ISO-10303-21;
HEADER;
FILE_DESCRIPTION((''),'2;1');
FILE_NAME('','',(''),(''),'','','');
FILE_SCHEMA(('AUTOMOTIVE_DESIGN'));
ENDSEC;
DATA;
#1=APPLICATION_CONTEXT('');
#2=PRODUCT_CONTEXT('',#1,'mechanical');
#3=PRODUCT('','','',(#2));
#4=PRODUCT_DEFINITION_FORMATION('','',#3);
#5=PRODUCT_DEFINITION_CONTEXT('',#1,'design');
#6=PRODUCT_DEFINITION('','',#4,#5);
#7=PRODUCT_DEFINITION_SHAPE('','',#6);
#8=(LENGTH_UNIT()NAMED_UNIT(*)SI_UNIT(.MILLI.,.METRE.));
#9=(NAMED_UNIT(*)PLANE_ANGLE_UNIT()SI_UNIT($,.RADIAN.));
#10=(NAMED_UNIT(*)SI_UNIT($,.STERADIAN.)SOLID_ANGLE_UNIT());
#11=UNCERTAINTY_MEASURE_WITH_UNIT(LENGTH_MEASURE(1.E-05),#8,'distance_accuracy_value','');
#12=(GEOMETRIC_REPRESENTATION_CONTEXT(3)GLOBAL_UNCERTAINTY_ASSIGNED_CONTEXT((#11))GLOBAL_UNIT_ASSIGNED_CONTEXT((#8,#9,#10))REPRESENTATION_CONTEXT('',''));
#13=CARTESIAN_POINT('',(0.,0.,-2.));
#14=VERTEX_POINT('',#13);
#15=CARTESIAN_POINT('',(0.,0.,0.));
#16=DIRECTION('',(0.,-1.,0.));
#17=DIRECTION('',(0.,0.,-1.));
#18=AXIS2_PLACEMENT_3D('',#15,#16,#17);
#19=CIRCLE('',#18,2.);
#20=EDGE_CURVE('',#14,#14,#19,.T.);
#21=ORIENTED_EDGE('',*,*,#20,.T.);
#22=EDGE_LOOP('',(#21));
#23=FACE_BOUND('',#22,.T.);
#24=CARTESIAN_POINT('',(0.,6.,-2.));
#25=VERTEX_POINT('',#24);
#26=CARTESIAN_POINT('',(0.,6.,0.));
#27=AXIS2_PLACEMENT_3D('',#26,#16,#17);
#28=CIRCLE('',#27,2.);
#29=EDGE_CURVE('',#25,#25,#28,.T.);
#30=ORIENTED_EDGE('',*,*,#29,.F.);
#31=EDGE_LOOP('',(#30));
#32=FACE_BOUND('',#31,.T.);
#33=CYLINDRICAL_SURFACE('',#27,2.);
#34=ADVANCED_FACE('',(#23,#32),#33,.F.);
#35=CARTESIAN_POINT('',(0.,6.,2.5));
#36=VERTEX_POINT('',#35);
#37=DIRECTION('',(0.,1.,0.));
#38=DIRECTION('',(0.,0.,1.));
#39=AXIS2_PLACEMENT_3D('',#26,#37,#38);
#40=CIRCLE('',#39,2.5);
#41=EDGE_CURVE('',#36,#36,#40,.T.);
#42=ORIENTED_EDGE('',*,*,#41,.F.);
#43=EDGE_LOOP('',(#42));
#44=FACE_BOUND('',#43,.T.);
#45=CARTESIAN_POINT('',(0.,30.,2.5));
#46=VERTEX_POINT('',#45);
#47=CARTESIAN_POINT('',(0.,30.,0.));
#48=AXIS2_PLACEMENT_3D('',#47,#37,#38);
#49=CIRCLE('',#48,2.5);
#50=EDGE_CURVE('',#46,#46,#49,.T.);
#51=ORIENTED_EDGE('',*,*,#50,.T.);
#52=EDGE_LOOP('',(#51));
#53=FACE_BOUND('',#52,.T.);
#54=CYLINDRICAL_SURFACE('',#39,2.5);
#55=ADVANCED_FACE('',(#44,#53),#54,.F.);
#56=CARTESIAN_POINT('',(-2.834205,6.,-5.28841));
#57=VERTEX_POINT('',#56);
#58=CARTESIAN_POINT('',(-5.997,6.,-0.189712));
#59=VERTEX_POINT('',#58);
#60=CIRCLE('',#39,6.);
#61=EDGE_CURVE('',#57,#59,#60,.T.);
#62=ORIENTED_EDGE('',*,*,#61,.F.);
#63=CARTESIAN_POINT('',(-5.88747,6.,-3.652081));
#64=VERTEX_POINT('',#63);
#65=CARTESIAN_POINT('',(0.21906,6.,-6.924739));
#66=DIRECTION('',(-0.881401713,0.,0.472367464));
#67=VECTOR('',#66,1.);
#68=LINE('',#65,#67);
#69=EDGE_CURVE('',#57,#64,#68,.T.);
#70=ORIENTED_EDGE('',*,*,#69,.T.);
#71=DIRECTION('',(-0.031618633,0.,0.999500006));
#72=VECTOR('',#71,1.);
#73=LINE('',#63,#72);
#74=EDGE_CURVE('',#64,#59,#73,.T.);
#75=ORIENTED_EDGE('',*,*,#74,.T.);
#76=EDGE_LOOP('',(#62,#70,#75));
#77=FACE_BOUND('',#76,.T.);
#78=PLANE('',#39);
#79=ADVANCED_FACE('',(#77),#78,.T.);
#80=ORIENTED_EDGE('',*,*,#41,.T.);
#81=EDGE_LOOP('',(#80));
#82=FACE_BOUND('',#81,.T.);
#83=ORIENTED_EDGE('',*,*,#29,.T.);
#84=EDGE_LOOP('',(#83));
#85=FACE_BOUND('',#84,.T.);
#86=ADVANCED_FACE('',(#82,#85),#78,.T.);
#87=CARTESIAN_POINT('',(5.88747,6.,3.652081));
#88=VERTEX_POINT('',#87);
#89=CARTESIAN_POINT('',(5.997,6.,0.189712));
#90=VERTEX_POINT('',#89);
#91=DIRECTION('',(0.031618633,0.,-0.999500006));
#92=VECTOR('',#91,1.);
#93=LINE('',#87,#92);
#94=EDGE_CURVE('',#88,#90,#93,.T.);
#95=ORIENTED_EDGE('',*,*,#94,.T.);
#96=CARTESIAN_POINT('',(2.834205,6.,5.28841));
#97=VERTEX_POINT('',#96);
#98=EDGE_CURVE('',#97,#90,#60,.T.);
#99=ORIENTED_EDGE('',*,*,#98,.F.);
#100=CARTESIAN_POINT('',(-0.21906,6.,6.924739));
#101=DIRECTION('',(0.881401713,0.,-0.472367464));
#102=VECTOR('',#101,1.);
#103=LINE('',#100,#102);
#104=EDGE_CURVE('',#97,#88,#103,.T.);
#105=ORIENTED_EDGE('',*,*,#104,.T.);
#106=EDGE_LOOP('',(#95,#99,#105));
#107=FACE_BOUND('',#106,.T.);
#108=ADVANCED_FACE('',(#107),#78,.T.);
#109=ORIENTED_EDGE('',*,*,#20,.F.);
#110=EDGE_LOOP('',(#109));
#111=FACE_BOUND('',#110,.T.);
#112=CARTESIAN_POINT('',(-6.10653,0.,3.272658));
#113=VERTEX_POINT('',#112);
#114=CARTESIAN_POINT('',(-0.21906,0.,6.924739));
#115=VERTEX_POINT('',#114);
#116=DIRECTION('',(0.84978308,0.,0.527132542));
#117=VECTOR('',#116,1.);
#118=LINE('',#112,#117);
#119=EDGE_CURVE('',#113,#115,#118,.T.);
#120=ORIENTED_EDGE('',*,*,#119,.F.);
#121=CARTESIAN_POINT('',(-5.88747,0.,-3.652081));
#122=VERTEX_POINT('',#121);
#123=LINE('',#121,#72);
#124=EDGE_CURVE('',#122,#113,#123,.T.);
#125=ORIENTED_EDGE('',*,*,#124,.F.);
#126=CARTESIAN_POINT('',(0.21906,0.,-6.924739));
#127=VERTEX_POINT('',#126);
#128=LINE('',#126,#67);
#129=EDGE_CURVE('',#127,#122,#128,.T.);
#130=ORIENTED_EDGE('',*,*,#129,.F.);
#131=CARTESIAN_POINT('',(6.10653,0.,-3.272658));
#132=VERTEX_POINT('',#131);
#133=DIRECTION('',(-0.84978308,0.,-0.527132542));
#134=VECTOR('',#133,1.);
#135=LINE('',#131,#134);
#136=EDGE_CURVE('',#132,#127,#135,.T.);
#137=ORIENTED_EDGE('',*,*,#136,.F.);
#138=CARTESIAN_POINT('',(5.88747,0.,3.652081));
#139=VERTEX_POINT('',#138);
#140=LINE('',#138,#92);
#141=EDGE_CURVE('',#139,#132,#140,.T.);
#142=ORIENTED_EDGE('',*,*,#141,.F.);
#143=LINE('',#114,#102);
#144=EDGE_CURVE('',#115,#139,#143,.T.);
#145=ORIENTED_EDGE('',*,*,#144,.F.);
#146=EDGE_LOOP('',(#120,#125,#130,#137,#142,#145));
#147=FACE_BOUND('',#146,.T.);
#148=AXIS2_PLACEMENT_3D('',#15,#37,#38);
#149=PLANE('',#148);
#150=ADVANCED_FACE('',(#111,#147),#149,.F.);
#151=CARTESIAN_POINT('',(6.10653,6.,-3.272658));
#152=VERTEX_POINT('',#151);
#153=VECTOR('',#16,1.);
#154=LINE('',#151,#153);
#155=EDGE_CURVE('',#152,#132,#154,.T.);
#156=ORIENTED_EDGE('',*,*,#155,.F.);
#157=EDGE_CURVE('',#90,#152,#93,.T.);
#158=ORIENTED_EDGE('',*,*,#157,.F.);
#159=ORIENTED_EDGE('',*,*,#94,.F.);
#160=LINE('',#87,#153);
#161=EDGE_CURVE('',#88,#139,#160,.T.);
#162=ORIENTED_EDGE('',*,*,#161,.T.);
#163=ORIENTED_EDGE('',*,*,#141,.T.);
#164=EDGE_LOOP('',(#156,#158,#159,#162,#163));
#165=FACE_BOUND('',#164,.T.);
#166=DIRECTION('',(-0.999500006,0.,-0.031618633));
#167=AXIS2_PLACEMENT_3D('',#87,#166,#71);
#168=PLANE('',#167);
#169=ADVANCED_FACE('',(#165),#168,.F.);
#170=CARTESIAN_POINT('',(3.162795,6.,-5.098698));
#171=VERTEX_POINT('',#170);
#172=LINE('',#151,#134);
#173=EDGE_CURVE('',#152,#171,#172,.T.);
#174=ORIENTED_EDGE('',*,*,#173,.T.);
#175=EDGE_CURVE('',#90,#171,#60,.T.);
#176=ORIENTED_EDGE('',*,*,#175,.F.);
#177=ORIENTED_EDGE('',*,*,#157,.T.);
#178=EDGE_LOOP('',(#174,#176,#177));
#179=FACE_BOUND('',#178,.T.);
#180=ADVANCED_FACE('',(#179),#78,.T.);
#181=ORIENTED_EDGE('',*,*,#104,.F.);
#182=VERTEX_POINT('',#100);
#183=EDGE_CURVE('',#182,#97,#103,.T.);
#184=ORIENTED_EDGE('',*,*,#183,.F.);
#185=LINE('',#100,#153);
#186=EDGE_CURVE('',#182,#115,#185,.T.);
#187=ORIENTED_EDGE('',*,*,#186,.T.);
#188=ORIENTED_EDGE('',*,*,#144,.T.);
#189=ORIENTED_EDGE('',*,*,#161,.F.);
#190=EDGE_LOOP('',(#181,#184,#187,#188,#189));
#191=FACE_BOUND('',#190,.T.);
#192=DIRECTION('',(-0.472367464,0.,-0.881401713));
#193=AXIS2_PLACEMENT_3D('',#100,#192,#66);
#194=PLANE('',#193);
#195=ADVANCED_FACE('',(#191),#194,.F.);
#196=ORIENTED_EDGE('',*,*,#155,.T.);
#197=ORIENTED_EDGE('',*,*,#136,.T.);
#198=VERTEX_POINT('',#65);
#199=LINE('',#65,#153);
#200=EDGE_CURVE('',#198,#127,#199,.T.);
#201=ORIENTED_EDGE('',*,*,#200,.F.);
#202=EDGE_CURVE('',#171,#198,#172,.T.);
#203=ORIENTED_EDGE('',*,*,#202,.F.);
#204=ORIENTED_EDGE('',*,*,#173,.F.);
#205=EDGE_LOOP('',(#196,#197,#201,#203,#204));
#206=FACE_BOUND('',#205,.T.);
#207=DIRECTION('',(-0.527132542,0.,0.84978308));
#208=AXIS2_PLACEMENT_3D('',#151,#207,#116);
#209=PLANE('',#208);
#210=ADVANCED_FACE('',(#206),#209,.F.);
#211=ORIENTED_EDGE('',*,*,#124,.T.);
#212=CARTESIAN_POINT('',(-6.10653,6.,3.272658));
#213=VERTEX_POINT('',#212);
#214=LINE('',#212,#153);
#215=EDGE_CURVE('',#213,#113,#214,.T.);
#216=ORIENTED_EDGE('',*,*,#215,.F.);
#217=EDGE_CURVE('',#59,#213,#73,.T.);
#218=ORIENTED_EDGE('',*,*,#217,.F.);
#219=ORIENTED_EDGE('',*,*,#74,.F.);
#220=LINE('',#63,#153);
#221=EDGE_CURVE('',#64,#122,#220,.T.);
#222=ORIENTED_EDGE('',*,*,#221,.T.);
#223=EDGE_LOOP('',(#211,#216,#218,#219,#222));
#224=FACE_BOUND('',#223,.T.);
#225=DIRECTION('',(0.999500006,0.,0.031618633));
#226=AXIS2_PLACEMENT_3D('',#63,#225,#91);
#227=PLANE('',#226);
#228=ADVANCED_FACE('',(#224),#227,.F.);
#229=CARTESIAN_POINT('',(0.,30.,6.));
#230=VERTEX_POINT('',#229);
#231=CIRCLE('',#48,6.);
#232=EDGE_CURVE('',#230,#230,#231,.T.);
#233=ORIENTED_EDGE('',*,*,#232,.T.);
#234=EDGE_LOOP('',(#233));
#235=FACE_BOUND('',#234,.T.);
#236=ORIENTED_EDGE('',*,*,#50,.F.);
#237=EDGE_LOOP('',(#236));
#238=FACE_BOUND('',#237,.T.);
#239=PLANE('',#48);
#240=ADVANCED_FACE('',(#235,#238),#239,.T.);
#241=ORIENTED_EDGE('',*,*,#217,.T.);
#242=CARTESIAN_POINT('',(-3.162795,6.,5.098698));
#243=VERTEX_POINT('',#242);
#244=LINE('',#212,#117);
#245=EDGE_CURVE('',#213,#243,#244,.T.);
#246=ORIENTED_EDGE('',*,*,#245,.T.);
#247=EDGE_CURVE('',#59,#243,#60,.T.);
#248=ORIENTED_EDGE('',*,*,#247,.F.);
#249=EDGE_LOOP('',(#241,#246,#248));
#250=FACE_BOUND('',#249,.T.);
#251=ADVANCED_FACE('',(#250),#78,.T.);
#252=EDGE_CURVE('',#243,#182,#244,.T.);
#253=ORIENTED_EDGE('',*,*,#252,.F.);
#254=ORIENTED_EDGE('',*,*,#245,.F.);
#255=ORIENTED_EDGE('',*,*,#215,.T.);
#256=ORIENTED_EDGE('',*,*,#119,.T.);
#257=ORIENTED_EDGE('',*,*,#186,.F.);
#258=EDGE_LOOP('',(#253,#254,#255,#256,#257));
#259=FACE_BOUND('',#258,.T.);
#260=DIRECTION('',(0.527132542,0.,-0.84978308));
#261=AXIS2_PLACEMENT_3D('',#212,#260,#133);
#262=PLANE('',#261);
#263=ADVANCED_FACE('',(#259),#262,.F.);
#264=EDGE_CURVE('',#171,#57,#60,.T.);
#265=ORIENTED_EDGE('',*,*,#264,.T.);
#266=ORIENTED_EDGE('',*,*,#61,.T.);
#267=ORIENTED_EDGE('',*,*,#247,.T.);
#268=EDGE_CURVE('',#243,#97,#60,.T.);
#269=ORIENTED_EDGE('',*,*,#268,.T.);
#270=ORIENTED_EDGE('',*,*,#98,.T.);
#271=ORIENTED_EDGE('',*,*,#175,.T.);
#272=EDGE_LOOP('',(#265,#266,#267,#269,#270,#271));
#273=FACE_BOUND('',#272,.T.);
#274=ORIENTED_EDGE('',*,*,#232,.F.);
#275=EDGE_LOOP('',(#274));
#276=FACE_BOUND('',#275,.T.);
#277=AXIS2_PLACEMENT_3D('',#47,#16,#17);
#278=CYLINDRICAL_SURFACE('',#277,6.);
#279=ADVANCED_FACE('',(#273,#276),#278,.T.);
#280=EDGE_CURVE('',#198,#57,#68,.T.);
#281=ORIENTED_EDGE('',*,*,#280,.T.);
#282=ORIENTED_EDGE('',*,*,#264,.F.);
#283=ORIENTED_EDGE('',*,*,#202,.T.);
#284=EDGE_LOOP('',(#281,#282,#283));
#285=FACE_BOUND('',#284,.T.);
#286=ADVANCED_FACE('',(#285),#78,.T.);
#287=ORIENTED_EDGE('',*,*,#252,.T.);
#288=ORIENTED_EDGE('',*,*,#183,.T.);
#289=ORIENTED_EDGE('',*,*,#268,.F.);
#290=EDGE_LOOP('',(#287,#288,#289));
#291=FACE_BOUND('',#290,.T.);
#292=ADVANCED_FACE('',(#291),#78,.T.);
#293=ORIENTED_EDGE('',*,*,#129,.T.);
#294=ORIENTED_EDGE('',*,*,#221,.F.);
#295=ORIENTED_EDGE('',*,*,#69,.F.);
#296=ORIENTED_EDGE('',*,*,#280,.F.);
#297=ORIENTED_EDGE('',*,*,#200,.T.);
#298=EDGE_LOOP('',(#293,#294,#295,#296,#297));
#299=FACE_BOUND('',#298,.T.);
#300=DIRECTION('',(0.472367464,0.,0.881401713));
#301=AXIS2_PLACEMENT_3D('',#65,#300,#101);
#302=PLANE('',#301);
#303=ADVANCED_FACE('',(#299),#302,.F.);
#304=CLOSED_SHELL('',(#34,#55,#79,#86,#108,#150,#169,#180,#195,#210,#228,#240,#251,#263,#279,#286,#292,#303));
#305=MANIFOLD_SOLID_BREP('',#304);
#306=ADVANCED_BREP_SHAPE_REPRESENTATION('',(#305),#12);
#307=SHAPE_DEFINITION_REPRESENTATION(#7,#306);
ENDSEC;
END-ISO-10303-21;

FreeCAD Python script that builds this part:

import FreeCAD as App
import Part
import Sketcher


def add_polygon(sketch, points):
    """Adds a closed chain of lines whose ends are joined by coincident constraints."""
    first, n = sketch.GeometryCount, len(points)
    for a, b in zip(points, points[1:] + points[:1]):
        sketch.addGeometry(Part.LineSegment(App.Vector(*a, 0), App.Vector(*b, 0)), False)
    for i in range(n):
        sketch.addConstraint(Sketcher.Constraint("Coincident", first + i, 2, first + (i + 1) % n, 1))

doc = App.newDocument("Part")
body = doc.addObject("PartDesign::Body", "Body")

# Sketch on XZ plane
sketch1 = doc.addObject("Sketcher::SketchObject", "Sketch")
body.addObject(sketch1)
sketch1.AttachmentSupport = (doc.XZ_Plane, [""])
sketch1.MapMode = "FlatFace"
add_polygon(sketch1, [(6, 4), (6, -3), (0, -7), (-6, -4), (-6, 3), (0, 7)])  # lines 0-5
sketch1.addConstraint(Sketcher.Constraint("Symmetric", 0, 2, 3, 2, -1, 1))
sketch1.addConstraint(Sketcher.Constraint("Symmetric", 1, 2, 4, 2, -1, 1))
sketch1.addConstraint(Sketcher.Constraint("Symmetric", 2, 2, 5, 2, -1, 1))
sketch1.addConstraint(Sketcher.Constraint("Equal", 0, 1))
sketch1.addConstraint(Sketcher.Constraint("Equal", 1, 2))
sketch1.addConstraint(Sketcher.Constraint("DistanceX", 2, 2, 0, 2, 11.994))
sketch1.addConstraint(Sketcher.Constraint("DistanceX", -1, 1, 0, 2, 6.10653))
sketch1.addConstraint(Sketcher.Constraint("DistanceX", -1, 1, 1, 2, 0.21906))
sketch1.addConstraint(Sketcher.Constraint("DistanceY", 1, 2, -1, 1, 6.924739))
pad1 = doc.addObject("PartDesign::Pad", "Pad")
body.addObject(pad1)
pad1.Profile = sketch1
pad1.Length = 6
pad1.Reversed = True

# Sketch on XZ plane
sketch2 = doc.addObject("Sketcher::SketchObject", "Sketch001")
body.addObject(sketch2)
sketch2.AttachmentSupport = (doc.XZ_Plane, [""])
sketch2.MapMode = "FlatFace"
sketch2.AttachmentOffset = App.Placement(App.Vector(0, 0, -6), App.Rotation())
sketch2.addGeometry(Part.Circle(App.Vector(0, 0, 0), App.Vector(0, 0, 1), 6), False)
sketch2.addConstraint(Sketcher.Constraint("Coincident", 0, 3, -1, 1))
sketch2.addConstraint(Sketcher.Constraint("Diameter", 0, 12.0))
pad2 = doc.addObject("PartDesign::Pad", "Pad001")
body.addObject(pad2)
pad2.Profile = sketch2
pad2.Length = 24
pad2.Reversed = True

# Sketch on XZ plane
sketch3 = doc.addObject("Sketcher::SketchObject", "Sketch002")
body.addObject(sketch3)
sketch3.AttachmentSupport = (doc.XZ_Plane, [""])
sketch3.MapMode = "FlatFace"
sketch3.AttachmentOffset = App.Placement(App.Vector(0, 0, -30), App.Rotation())
sketch3.addGeometry(Part.Circle(App.Vector(0, 0, 0), App.Vector(0, 0, 1), 2.5), False)
sketch3.addConstraint(Sketcher.Constraint("Coincident", 0, 3, -1, 1))
sketch3.addConstraint(Sketcher.Constraint("Diameter", 0, 5.0))
pocket1 = doc.addObject("PartDesign::Pocket", "Pocket")
body.addObject(pocket1)
pocket1.Profile = sketch3
pocket1.Length = 24
pocket1.Reversed = True

# Sketch on XZ plane
sketch4 = doc.addObject("Sketcher::SketchObject", "Sketch003")
body.addObject(sketch4)
sketch4.AttachmentSupport = (doc.XZ_Plane, [""])
sketch4.MapMode = "FlatFace"
sketch4.addGeometry(Part.Circle(App.Vector(0, 0, 0), App.Vector(0, 0, 1), 2), False)
sketch4.addConstraint(Sketcher.Constraint("Coincident", 0, 3, -1, 1))
sketch4.addConstraint(Sketcher.Constraint("Diameter", 0, 4.0))
pocket2 = doc.addObject("PartDesign::Pocket", "Pocket001")
body.addObject(pocket2)
pocket2.Profile = sketch4
pocket2.Length = 6

doc.recompute()
